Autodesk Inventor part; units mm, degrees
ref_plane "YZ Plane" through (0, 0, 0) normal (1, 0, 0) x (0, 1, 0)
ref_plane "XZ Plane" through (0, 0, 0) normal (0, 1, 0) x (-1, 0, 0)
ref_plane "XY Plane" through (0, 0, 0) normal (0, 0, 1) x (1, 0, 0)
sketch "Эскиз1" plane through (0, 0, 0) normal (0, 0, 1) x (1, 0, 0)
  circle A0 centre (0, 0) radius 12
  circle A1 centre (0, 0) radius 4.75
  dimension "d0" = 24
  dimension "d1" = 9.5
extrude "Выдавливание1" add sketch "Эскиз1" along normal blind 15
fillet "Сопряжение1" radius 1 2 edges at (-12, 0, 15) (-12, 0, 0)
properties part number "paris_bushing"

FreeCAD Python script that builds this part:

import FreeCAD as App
import Part
import Sketcher

V = App.Vector


def edges_at(feature, points):
    """Names of the edges that pass closest to the given points."""
    edges = feature.Shape.Edges
    near = lambda p: min(range(len(edges)), key=lambda i: edges[i].distToShape(Part.Vertex(*p))[0])
    return sorted({f"Edge{near(p) + 1}" for p in points})

doc = App.newDocument("Part")
body = doc.addObject("PartDesign::Body", "Body")

sketch1 = body.newObject("Sketcher::SketchObject", "Sketch")
sketch1.AttachmentSupport = (doc.getObject("XY_Plane"), [""])
sketch1.MapMode = "FlatFace"
sketch1.addGeometry(Part.Circle(V(0, 0, 0), V(0, 0, 1), 12), False)
sketch1.addGeometry(Part.Circle(V(0, 0, 0), V(0, 0, 1), 4.75), False)
sketch1.addConstraint(Sketcher.Constraint("Coincident", 0, 3, -1, 1))
sketch1.addConstraint(Sketcher.Constraint("Coincident", 1, 3, -1, 1))
sketch1.addConstraint(Sketcher.Constraint("Diameter", 0, 24.0))
sketch1.addConstraint(Sketcher.Constraint("Diameter", 1, 9.5))
pad1 = body.newObject("PartDesign::Pad", "Pad")
pad1.Profile = sketch1
pad1.Length = 15
doc.recompute()

fillet = body.newObject("PartDesign::Fillet", "Fillet")
fillet.Base = (pad1, edges_at(pad1, [(-12, 0, 15), (-12, 0, 0)]))
fillet.Radius = 1

doc.recompute()
